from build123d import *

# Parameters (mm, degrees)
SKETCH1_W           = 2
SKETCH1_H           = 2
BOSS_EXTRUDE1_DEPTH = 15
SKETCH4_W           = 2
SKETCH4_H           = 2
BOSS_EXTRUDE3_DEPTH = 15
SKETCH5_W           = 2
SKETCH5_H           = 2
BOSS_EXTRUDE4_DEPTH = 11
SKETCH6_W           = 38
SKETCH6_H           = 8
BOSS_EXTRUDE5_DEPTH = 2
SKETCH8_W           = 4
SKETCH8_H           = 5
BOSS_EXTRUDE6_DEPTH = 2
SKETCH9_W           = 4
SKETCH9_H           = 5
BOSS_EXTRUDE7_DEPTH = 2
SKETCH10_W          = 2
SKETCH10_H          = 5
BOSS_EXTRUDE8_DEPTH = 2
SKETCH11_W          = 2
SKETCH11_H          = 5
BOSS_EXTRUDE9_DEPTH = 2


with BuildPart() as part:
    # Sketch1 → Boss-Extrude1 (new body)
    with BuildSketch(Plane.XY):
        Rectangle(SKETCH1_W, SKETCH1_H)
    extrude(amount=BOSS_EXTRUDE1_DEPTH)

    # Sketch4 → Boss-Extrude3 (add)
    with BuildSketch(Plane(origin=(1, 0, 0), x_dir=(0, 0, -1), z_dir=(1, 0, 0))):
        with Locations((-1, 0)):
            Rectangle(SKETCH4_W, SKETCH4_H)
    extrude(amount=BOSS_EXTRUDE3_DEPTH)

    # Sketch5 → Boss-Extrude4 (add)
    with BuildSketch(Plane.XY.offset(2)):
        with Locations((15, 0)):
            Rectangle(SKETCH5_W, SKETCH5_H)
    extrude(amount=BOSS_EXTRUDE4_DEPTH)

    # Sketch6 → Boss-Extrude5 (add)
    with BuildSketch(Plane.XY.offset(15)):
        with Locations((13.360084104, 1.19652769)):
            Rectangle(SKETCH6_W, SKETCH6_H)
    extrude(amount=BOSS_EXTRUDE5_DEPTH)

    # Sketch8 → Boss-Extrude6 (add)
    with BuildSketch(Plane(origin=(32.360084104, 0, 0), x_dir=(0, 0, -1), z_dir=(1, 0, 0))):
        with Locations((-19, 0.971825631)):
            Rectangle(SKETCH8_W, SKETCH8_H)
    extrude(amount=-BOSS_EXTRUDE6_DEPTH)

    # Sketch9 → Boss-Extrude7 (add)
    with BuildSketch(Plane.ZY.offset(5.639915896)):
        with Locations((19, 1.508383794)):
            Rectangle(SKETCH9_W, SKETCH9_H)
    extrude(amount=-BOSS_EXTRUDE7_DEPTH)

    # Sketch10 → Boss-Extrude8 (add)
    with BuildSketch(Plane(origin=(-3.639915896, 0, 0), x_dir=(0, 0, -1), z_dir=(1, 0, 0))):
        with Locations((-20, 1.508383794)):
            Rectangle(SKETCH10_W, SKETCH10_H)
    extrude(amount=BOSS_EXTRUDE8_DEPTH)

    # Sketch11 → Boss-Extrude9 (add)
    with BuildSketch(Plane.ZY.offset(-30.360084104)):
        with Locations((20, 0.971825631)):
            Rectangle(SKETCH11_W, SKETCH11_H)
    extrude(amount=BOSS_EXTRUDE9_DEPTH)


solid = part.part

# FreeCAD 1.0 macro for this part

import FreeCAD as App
import Part
import Sketcher


def add_polygon(sketch, points):
    """Adds a closed chain of lines whose ends are joined by coincident constraints."""
    first, n = sketch.GeometryCount, len(points)
    for a, b in zip(points, points[1:] + points[:1]):
        sketch.addGeometry(Part.LineSegment(App.Vector(*a, 0), App.Vector(*b, 0)), False)
    for i in range(n):
        sketch.addConstraint(Sketcher.Constraint("Coincident", first + i, 2, first + (i + 1) % n, 1))

doc = App.newDocument("Part")
params = doc.addObject("Spreadsheet::Sheet", "Params")
for row, (alias, value) in enumerate([
    ("sketch1_width", "2 mm"),
    ("pad1_length", "15 mm"),
    ("sketch2_width", "2 mm"),
    ("pad2_length", "15 mm"),
    ("sketch3_width", "2 mm"),
    ("pad3_length", "11 mm"),
    ("sketch4_width", "38 mm"),
    ("sketch4_height", "8 mm"),
    ("pad4_length", "2 mm"),
    ("sketch5_width", "5 mm"),
    ("sketch5_height", "4 mm"),
    ("pad5_length", "2 mm"),
    ("sketch6_width", "5 mm"),
    ("sketch6_height", "4 mm"),
    ("pad6_length", "2 mm"),
    ("sketch7_width", "5 mm"),
    ("sketch7_height", "2 mm"),
    ("pad7_length", "2 mm"),
    ("sketch8_width", "5 mm"),
    ("sketch8_height", "2 mm"),
    ("pad8_length", "2 mm"),
], start=1):
    params.set(f"A{row}", alias)
    params.set(f"B{row}", "=" + value)
    params.setAlias(f"B{row}", alias)

body = doc.addObject("PartDesign::Body", "Body")

# Sketch on XY plane
sketch1 = body.newObject("Sketcher::SketchObject", "Sketch")
sketch1.AttachmentSupport = (doc.getObject("XY_Plane"), [""])
sketch1.MapMode = "FlatFace"
add_polygon(sketch1, [(-1, 1), (-1, -1), (1, -1), (1, 1)])  # lines 0-3
sketch1.addConstraint([
    Sketcher.Constraint("Vertical", 0),
    Sketcher.Constraint("Horizontal", 1),
    Sketcher.Constraint("Vertical", 2),
    Sketcher.Constraint("Horizontal", 3),
    Sketcher.Constraint("Symmetric", 0, 2, 2, 2, -1, 1),
    Sketcher.Constraint("Equal", 3, 0),
    Sketcher.Constraint("DistanceX", 1, 1, 1, 2, 2.0),
])
sketch1.setExpression("Constraints[10]", "Params.sketch1_width")
pad1 = body.newObject("PartDesign::Pad", "Pad")
pad1.Profile = sketch1
pad1.setExpression("Length", "Params.pad1_length")

# Sketch on YZ plane
sketch2 = body.newObject("Sketcher::SketchObject", "Sketch001")
sketch2.AttachmentSupport = (doc.getObject("YZ_Plane"), [""])
sketch2.MapMode = "FlatFace"
sketch2.AttachmentOffset = App.Placement(App.Vector(0, 0, 1), App.Rotation())
add_polygon(sketch2, [(1, 2), (-1, 2), (-1, 0), (1, 0)])  # lines 0-3
sketch2.addConstraint([
    Sketcher.Constraint("Horizontal", 0),
    Sketcher.Constraint("Vertical", 1),
    Sketcher.Constraint("Horizontal", 2),
    Sketcher.Constraint("Vertical", 3),
    Sketcher.Constraint("Symmetric", 1, 2, 2, 2, -1, 1),
    Sketcher.Constraint("Equal", 2, 1),
    Sketcher.Constraint("DistanceX", 0, 2, 0, 1, 2.0),
])
sketch2.setExpression("Constraints[10]", "Params.sketch2_width")
pad2 = body.newObject("PartDesign::Pad", "Pad001")
pad2.Profile = sketch2
pad2.setExpression("Length", "Params.pad2_length")

# Sketch on XY plane
sketch3 = body.newObject("Sketcher::SketchObject", "Sketch002")
sketch3.AttachmentSupport = (doc.getObject("XY_Plane"), [""])
sketch3.MapMode = "FlatFace"
sketch3.AttachmentOffset = App.Placement(App.Vector(0, 0, 2), App.Rotation())
add_polygon(sketch3, [(14, 1), (14, -1), (16, -1), (16, 1)])  # lines 0-3
sketch3.addConstraint([
    Sketcher.Constraint("Vertical", 0),
    Sketcher.Constraint("Horizontal", 1),
    Sketcher.Constraint("Vertical", 2),
    Sketcher.Constraint("Horizontal", 3),
    Sketcher.Constraint("Equal", 3, 0),
    Sketcher.Constraint("DistanceX", 1, 1, 1, 2, 2.0),
    Sketcher.Constraint("DistanceX", -1, 1, 0, 2, 14.0),
    Sketcher.Constraint("DistanceY", 0, 2, -1, 1, 1.0),
])
sketch3.setExpression("Constraints[9]", "Params.sketch3_width")
pad3 = body.newObject("PartDesign::Pad", "Pad002")
pad3.Profile = sketch3
pad3.setExpression("Length", "Params.pad3_length")

# Sketch on XY plane
sketch4 = body.newObject("Sketcher::SketchObject", "Sketch003")
sketch4.AttachmentSupport = (doc.getObject("XY_Plane"), [""])
sketch4.MapMode = "FlatFace"
sketch4.AttachmentOffset = App.Placement(App.Vector(0, 0, 15), App.Rotation())
add_polygon(sketch4, [(-6, 5), (-6, -3), (32, -3), (32, 5)])  # lines 0-3
sketch4.addConstraint([
    Sketcher.Constraint("Vertical", 0),
    Sketcher.Constraint("Horizontal", 1),
    Sketcher.Constraint("Vertical", 2),
    Sketcher.Constraint("Horizontal", 3),
    Sketcher.Constraint("DistanceX", 1, 1, 1, 2, 38.0),
    Sketcher.Constraint("DistanceY", 0, 2, 0, 1, 8.0),
    Sketcher.Constraint("DistanceX", 0, 2, -1, 1, 5.639916),
    Sketcher.Constraint("DistanceY", 0, 2, -1, 1, 2.803472),
])
sketch4.setExpression("Constraints[8]", "Params.sketch4_width")
sketch4.setExpression("Constraints[9]", "Params.sketch4_height")
pad4 = body.newObject("PartDesign::Pad", "Pad003")
pad4.Profile = sketch4
pad4.setExpression("Length", "Params.pad4_length")

# Sketch on YZ plane
sketch5 = body.newObject("Sketcher::SketchObject", "Sketch004")
sketch5.AttachmentSupport = (doc.getObject("YZ_Plane"), [""])
sketch5.MapMode = "FlatFace"
sketch5.AttachmentOffset = App.Placement(App.Vector(0, 0, 32.360084), App.Rotation())
add_polygon(sketch5, [(3.5, 21), (-1.5, 21), (-1.5, 17), (3.5, 17)])  # lines 0-3
sketch5.addConstraint([
    Sketcher.Constraint("Horizontal", 0),
    Sketcher.Constraint("Vertical", 1),
    Sketcher.Constraint("Horizontal", 2),
    Sketcher.Constraint("Vertical", 3),
    Sketcher.Constraint("DistanceX", 0, 2, 0, 1, 5.0),
    Sketcher.Constraint("DistanceY", 1, 2, 1, 1, 4.0),
    Sketcher.Constraint("DistanceY", -1, 1, 0, 2, 21.0),
    Sketcher.Constraint("DistanceX", 0, 2, -1, 1, 1.528174),
])
sketch5.setExpression("Constraints[8]", "Params.sketch5_width")
sketch5.setExpression("Constraints[9]", "Params.sketch5_height")
pad5 = body.newObject("PartDesign::Pad", "Pad004")
pad5.Profile = sketch5
pad5.setExpression("Length", "Params.pad5_length")
pad5.Reversed = True

# Sketch on YZ plane
sketch6 = body.newObject("Sketcher::SketchObject", "Sketch005")
sketch6.AttachmentSupport = (doc.getObject("YZ_Plane"), [""])
sketch6.MapMode = "FlatFace"
sketch6.AttachmentOffset = App.Placement(App.Vector(0, 0, -5.639916), App.Rotation())
add_polygon(sketch6, [(4, 17), (-1, 17), (-1, 21), (4, 21)])  # lines 0-3
sketch6.addConstraint([
    Sketcher.Constraint("Horizontal", 0),
    Sketcher.Constraint("Vertical", 1),
    Sketcher.Constraint("Horizontal", 2),
    Sketcher.Constraint("Vertical", 3),
    Sketcher.Constraint("DistanceX", 0, 2, 0, 1, 5.0),
    Sketcher.Constraint("DistanceY", 1, 1, 1, 2, 4.0),
    Sketcher.Constraint("DistanceY", -1, 1, 0, 2, 17.0),
    Sketcher.Constraint("DistanceX", 0, 2, -1, 1, 0.991616),
])
sketch6.setExpression("Constraints[8]", "Params.sketch6_width")
sketch6.setExpression("Constraints[9]", "Params.sketch6_height")
pad6 = body.newObject("PartDesign::Pad", "Pad005")
pad6.Profile = sketch6
pad6.setExpression("Length", "Params.pad6_length")

# Sketch on YZ plane
sketch7 = body.newObject("Sketcher::SketchObject", "Sketch006")
sketch7.AttachmentSupport = (doc.getObject("YZ_Plane"), [""])
sketch7.MapMode = "FlatFace"
sketch7.AttachmentOffset = App.Placement(App.Vector(0, 0, -3.639916), App.Rotation())
add_polygon(sketch7, [(4, 21), (-1, 21), (-1, 19), (4, 19)])  # lines 0-3
sketch7.addConstraint([
    Sketcher.Constraint("Horizontal", 0),
    Sketcher.Constraint("Vertical", 1),
    Sketcher.Constraint("Horizontal", 2),
    Sketcher.Constraint("Vertical", 3),
    Sketcher.Constraint("DistanceX", 0, 2, 0, 1, 5.0),
    Sketcher.Constraint("DistanceY", 1, 2, 1, 1, 2.0),
    Sketcher.Constraint("DistanceY", -1, 1, 0, 2, 21.0),
    Sketcher.Constraint("DistanceX", 0, 2, -1, 1, 0.991616),
])
sketch7.setExpression("Constraints[8]", "Params.sketch7_width")
sketch7.setExpression("Constraints[9]", "Params.sketch7_height")
pad7 = body.newObject("PartDesign::Pad", "Pad006")
pad7.Profile = sketch7
pad7.setExpression("Length", "Params.pad7_length")

# Sketch on YZ plane
sketch8 = body.newObject("Sketcher::SketchObject", "Sketch007")
sketch8.AttachmentSupport = (doc.getObject("YZ_Plane"), [""])
sketch8.MapMode = "FlatFace"
sketch8.AttachmentOffset = App.Placement(App.Vector(0, 0, 30.360084), App.Rotation())
add_polygon(sketch8, [(3.5, 19), (-1.5, 19), (-1.5, 21), (3.5, 21)])  # lines 0-3
sketch8.addConstraint([
    Sketcher.Constraint("Horizontal", 0),
    Sketcher.Constraint("Vertical", 1),
    Sketcher.Constraint("Horizontal", 2),
    Sketcher.Constraint("Vertical", 3),
    Sketcher.Constraint("DistanceX", 0, 2, 0, 1, 5.0),
    Sketcher.Constraint("DistanceY", 1, 1, 1, 2, 2.0),
    Sketcher.Constraint("DistanceY", -1, 1, 0, 2, 19.0),
    Sketcher.Constraint("DistanceX", 0, 2, -1, 1, 1.528174),
])
sketch8.setExpression("Constraints[8]", "Params.sketch8_width")
sketch8.setExpression("Constraints[9]", "Params.sketch8_height")
pad8 = body.newObject("PartDesign::Pad", "Pad007")
pad8.Profile = sketch8
pad8.setExpression("Length", "Params.pad8_length")
pad8.Reversed = True

doc.recompute()
